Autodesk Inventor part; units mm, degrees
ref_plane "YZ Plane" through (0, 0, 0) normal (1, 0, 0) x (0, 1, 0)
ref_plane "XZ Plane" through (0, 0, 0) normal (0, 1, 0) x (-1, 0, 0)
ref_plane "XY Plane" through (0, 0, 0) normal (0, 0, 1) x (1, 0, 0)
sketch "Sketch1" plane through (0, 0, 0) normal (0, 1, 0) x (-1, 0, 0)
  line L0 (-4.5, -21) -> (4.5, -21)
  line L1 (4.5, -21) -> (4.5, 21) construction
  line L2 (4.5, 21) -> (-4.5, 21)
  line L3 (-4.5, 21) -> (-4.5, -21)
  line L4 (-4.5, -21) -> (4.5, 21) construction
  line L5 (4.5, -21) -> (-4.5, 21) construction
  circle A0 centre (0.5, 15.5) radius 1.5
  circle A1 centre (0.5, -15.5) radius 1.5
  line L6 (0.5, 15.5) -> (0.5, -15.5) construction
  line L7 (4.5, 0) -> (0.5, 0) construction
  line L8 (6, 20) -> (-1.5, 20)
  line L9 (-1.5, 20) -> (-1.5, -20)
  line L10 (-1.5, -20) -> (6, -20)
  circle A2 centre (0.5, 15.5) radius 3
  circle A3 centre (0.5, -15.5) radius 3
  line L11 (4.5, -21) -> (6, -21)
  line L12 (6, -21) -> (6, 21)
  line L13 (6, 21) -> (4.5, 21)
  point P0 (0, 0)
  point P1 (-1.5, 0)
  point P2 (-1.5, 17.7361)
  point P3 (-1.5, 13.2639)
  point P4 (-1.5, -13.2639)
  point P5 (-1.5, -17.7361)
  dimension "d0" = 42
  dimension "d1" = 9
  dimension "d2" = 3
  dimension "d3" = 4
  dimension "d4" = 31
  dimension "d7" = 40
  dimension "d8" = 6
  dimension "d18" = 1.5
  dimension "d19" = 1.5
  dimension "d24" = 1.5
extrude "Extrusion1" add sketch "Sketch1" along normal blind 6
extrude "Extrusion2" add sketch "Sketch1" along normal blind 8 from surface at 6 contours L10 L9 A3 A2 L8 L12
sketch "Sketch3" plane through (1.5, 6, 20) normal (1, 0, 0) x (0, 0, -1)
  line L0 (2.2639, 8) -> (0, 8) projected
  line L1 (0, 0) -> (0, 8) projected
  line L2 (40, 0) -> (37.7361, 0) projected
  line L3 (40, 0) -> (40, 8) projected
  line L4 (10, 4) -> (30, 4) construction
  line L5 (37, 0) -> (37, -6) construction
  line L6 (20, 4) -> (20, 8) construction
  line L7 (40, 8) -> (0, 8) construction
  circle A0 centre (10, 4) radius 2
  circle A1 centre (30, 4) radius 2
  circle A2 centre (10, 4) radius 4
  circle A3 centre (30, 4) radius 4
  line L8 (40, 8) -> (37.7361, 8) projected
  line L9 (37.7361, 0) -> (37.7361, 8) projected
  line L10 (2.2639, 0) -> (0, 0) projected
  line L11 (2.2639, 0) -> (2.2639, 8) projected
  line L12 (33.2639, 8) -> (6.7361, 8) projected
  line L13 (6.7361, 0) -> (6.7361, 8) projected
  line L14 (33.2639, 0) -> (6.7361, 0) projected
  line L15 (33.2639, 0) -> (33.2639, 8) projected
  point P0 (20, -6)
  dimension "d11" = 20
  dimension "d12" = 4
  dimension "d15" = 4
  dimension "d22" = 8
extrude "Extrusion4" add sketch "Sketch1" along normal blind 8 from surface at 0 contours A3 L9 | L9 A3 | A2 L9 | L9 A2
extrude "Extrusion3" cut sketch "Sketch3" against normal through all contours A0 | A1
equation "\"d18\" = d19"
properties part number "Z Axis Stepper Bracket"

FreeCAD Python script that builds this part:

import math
import FreeCAD as App
import Part
import Sketcher

doc = App.newDocument("Part")
body = doc.addObject("PartDesign::Body", "Body")

# Sketch on XZ plane
sketch1 = body.newObject("Sketcher::SketchObject", "Sketch")
sketch1.AttachmentSupport = (doc.getObject("XZ_Plane"), [""])
sketch1.MapMode = "FlatFace"
sketch1.addGeometry(Part.LineSegment(App.Vector(4.5, 21, 0), App.Vector(4.5, -21, 0)), False)
sketch1.addGeometry(Part.LineSegment(App.Vector(4.5, -21, 0), App.Vector(-6, -21, 0)), False)
sketch1.addGeometry(Part.LineSegment(App.Vector(-6, -21, 0), App.Vector(-6, 21, 0)), False)
sketch1.addGeometry(Part.LineSegment(App.Vector(-6, 21, 0), App.Vector(4.5, 21, 0)), False)
sketch1.addGeometry(Part.Circle(App.Vector(-0.5, 15.5, 0), App.Vector(0, 0, 1), 1.5), False)
sketch1.addGeometry(Part.Circle(App.Vector(-0.5, -15.5, 0), App.Vector(0, 0, 1), 1.5), False)
sketch1.addConstraint(Sketcher.Constraint("Coincident", 0, 2, 1, 1))
sketch1.addConstraint(Sketcher.Constraint("Coincident", 1, 2, 2, 1))
sketch1.addConstraint(Sketcher.Constraint("Coincident", 2, 2, 3, 1))
sketch1.addConstraint(Sketcher.Constraint("Coincident", 3, 2, 0, 1))
sketch1.addConstraint(Sketcher.Constraint("Vertical", 0))
sketch1.addConstraint(Sketcher.Constraint("Horizontal", 1))
sketch1.addConstraint(Sketcher.Constraint("Vertical", 2))
sketch1.addConstraint(Sketcher.Constraint("Horizontal", 3))
sketch1.addConstraint(Sketcher.Constraint("Equal", 4, 5))
sketch1.addConstraint(Sketcher.Constraint("Symmetric", 4, 3, 5, 3, -1))
sketch1.addConstraint(Sketcher.Constraint("Diameter", 4, 3.0))
sketch1.addConstraint(Sketcher.Constraint("DistanceY", 0, 2, 0, 1, 42.0))
sketch1.addConstraint(Sketcher.Constraint("DistanceX", 1, 2, -1, 1, 6.0))
sketch1.addConstraint(Sketcher.Constraint("DistanceY", 5, 3, 4, 3, 31.0))
sketch1.addConstraint(Sketcher.Constraint("DistanceX", 1, 2, 1, 1, 10.5))
sketch1.addConstraint(Sketcher.Constraint("DistanceY", 0, 2, -1, 1, 21.0))
sketch1.addConstraint(Sketcher.Constraint("DistanceX", 5, 3, 0, 2, 5.0))
pad1 = body.newObject("PartDesign::Pad", "Pad")
pad1.Profile = sketch1
pad1.Length = 6
pad1.Reversed = True

# Sketch on XZ plane
sketch2 = body.newObject("Sketcher::SketchObject", "Sketch001")
sketch2.AttachmentSupport = (doc.getObject("XZ_Plane"), [""])
sketch2.MapMode = "FlatFace"
sketch2.AttachmentOffset = App.Placement(App.Vector(0, 0, -6), App.Rotation())
sketch2.addGeometry(Part.LineSegment(App.Vector(1.5, -20, 0), App.Vector(-6, -20, 0)), False)
sketch2.addGeometry(Part.LineSegment(App.Vector(-6, -20, 0), App.Vector(-6, 20, 0)), False)
sketch2.addGeometry(Part.LineSegment(App.Vector(-6, 20, 0), App.Vector(1.5, 20, 0)), False)
sketch2.addGeometry(Part.LineSegment(App.Vector(1.5, 20, 0), App.Vector(1.5, 17.7, 0)), False)
sketch2.addGeometry(Part.ArcOfCircle(Part.Circle(App.Vector(-0.5, 15.5, 0), App.Vector(0, 0, 1), 3), math.radians(48), math.radians(312)), False)
sketch2.addGeometry(Part.LineSegment(App.Vector(1.5, 13.3, 0), App.Vector(1.5, -13.3, 0)), False)
sketch2.addGeometry(Part.ArcOfCircle(Part.Circle(App.Vector(-0.5, -15.5, 0), App.Vector(0, 0, 1), 3), math.radians(48), math.radians(312)), False)
sketch2.addGeometry(Part.LineSegment(App.Vector(1.5, -17.7, 0), App.Vector(1.5, -20, 0)), False)
sketch2.addConstraint(Sketcher.Constraint("Coincident", 0, 2, 1, 1))
sketch2.addConstraint(Sketcher.Constraint("Coincident", 1, 2, 2, 1))
sketch2.addConstraint(Sketcher.Constraint("Coincident", 2, 2, 3, 1))
sketch2.addConstraint(Sketcher.Constraint("Coincident", 3, 2, 4, 1))
sketch2.addConstraint(Sketcher.Constraint("Coincident", 4, 2, 5, 1))
sketch2.addConstraint(Sketcher.Constraint("Coincident", 5, 2, 6, 1))
sketch2.addConstraint(Sketcher.Constraint("Coincident", 6, 2, 7, 1))
sketch2.addConstraint(Sketcher.Constraint("Coincident", 7, 2, 0, 1))
sketch2.addConstraint(Sketcher.Constraint("Horizontal", 0))
sketch2.addConstraint(Sketcher.Constraint("Vertical", 1))
sketch2.addConstraint(Sketcher.Constraint("Horizontal", 2))
sketch2.addConstraint(Sketcher.Constraint("Vertical", 3))
sketch2.addConstraint(Sketcher.Constraint("Vertical", 5))
sketch2.addConstraint(Sketcher.Constraint("Vertical", 7))
sketch2.addConstraint(Sketcher.Constraint("Equal", 4, 6))
sketch2.addConstraint(Sketcher.Constraint("Symmetric", 4, 3, 6, 3, -1))
sketch2.addConstraint(Sketcher.Constraint("Symmetric", 2, 2, 7, 2, -1))
sketch2.addConstraint(Sketcher.Constraint("Vertical", 3, 2, 4, 2))
sketch2.addConstraint(Sketcher.Constraint("Radius", 4, 3.0))
sketch2.addConstraint(Sketcher.Constraint("DistanceY", 1, 1, 1, 2, 40.0))
sketch2.addConstraint(Sketcher.Constraint("DistanceX", 0, 2, -1, 1, 6.0))
sketch2.addConstraint(Sketcher.Constraint("DistanceY", 6, 3, 4, 3, 31.0))
sketch2.addConstraint(Sketcher.Constraint("DistanceX", -1, 1, 2, 2, 1.5))
sketch2.addConstraint(Sketcher.Constraint("DistanceX", 4, 3, 2, 2, 2.0))
pad2 = body.newObject("PartDesign::Pad", "Pad001")
pad2.Profile = sketch2
pad2.Length = 8
pad2.Reversed = True

# Sketch on XZ plane
sketch3 = body.newObject("Sketcher::SketchObject", "Sketch002")
sketch3.AttachmentSupport = (doc.getObject("XZ_Plane"), [""])
sketch3.MapMode = "FlatFace"
sketch3.addGeometry(Part.Circle(App.Vector(-0.5, -15.5, 0), App.Vector(0, 0, 1), 3), False)
sketch3.addGeometry(Part.Circle(App.Vector(-0.5, -15.5, 0), App.Vector(0, 0, 1), 1.5), False)
sketch3.addGeometry(Part.Circle(App.Vector(-0.5, 15.5, 0), App.Vector(0, 0, 1), 3), False)
sketch3.addGeometry(Part.Circle(App.Vector(-0.5, 15.5, 0), App.Vector(0, 0, 1), 1.5), False)
sketch3.addConstraint(Sketcher.Constraint("Coincident", 1, 3, 0, 3))
sketch3.addConstraint(Sketcher.Constraint("Coincident", 3, 3, 2, 3))
sketch3.addConstraint(Sketcher.Constraint("Equal", 0, 2))
sketch3.addConstraint(Sketcher.Constraint("Equal", 1, 3))
sketch3.addConstraint(Sketcher.Constraint("Symmetric", 0, 3, 2, 3, -1))
sketch3.addConstraint(Sketcher.Constraint("Diameter", 0, 6.0))
sketch3.addConstraint(Sketcher.Constraint("Diameter", 1, 3.0))
sketch3.addConstraint(Sketcher.Constraint("DistanceY", 0, 3, 2, 3, 31.0))
sketch3.addConstraint(Sketcher.Constraint("DistanceX", 0, 3, -1, 1, 0.5))
pad3 = body.newObject("PartDesign::Pad", "Pad002")
pad3.Profile = sketch3
pad3.Length = 8
pad3.Reversed = True

# Sketch on YZ plane
sketch4 = body.newObject("Sketcher::SketchObject", "Sketch003")
sketch4.AttachmentSupport = (doc.getObject("YZ_Plane"), [""])
sketch4.MapMode = "FlatFace"
sketch4.AttachmentOffset = App.Placement(App.Vector(0, 0, 1.5), App.Rotation())
sketch4.addGeometry(Part.Circle(App.Vector(10, 10, 0), App.Vector(0, 0, 1), 2), False)
sketch4.addGeometry(Part.Circle(App.Vector(10, -10, 0), App.Vector(0, 0, 1), 2), False)
sketch4.addConstraint(Sketcher.Constraint("Equal", 0, 1))
sketch4.addConstraint(Sketcher.Constraint("Symmetric", 0, 3, 1, 3, -1))
sketch4.addConstraint(Sketcher.Constraint("Diameter", 0, 4.0))
sketch4.addConstraint(Sketcher.Constraint("DistanceY", 1, 3, 0, 3, 20.0))
sketch4.addConstraint(Sketcher.Constraint("DistanceX", -1, 1, 0, 3, 10.0))
pocket1 = body.newObject("PartDesign::Pocket", "Pocket")
pocket1.Profile = sketch4
pocket1.Type = "ThroughAll"

doc.recompute()
